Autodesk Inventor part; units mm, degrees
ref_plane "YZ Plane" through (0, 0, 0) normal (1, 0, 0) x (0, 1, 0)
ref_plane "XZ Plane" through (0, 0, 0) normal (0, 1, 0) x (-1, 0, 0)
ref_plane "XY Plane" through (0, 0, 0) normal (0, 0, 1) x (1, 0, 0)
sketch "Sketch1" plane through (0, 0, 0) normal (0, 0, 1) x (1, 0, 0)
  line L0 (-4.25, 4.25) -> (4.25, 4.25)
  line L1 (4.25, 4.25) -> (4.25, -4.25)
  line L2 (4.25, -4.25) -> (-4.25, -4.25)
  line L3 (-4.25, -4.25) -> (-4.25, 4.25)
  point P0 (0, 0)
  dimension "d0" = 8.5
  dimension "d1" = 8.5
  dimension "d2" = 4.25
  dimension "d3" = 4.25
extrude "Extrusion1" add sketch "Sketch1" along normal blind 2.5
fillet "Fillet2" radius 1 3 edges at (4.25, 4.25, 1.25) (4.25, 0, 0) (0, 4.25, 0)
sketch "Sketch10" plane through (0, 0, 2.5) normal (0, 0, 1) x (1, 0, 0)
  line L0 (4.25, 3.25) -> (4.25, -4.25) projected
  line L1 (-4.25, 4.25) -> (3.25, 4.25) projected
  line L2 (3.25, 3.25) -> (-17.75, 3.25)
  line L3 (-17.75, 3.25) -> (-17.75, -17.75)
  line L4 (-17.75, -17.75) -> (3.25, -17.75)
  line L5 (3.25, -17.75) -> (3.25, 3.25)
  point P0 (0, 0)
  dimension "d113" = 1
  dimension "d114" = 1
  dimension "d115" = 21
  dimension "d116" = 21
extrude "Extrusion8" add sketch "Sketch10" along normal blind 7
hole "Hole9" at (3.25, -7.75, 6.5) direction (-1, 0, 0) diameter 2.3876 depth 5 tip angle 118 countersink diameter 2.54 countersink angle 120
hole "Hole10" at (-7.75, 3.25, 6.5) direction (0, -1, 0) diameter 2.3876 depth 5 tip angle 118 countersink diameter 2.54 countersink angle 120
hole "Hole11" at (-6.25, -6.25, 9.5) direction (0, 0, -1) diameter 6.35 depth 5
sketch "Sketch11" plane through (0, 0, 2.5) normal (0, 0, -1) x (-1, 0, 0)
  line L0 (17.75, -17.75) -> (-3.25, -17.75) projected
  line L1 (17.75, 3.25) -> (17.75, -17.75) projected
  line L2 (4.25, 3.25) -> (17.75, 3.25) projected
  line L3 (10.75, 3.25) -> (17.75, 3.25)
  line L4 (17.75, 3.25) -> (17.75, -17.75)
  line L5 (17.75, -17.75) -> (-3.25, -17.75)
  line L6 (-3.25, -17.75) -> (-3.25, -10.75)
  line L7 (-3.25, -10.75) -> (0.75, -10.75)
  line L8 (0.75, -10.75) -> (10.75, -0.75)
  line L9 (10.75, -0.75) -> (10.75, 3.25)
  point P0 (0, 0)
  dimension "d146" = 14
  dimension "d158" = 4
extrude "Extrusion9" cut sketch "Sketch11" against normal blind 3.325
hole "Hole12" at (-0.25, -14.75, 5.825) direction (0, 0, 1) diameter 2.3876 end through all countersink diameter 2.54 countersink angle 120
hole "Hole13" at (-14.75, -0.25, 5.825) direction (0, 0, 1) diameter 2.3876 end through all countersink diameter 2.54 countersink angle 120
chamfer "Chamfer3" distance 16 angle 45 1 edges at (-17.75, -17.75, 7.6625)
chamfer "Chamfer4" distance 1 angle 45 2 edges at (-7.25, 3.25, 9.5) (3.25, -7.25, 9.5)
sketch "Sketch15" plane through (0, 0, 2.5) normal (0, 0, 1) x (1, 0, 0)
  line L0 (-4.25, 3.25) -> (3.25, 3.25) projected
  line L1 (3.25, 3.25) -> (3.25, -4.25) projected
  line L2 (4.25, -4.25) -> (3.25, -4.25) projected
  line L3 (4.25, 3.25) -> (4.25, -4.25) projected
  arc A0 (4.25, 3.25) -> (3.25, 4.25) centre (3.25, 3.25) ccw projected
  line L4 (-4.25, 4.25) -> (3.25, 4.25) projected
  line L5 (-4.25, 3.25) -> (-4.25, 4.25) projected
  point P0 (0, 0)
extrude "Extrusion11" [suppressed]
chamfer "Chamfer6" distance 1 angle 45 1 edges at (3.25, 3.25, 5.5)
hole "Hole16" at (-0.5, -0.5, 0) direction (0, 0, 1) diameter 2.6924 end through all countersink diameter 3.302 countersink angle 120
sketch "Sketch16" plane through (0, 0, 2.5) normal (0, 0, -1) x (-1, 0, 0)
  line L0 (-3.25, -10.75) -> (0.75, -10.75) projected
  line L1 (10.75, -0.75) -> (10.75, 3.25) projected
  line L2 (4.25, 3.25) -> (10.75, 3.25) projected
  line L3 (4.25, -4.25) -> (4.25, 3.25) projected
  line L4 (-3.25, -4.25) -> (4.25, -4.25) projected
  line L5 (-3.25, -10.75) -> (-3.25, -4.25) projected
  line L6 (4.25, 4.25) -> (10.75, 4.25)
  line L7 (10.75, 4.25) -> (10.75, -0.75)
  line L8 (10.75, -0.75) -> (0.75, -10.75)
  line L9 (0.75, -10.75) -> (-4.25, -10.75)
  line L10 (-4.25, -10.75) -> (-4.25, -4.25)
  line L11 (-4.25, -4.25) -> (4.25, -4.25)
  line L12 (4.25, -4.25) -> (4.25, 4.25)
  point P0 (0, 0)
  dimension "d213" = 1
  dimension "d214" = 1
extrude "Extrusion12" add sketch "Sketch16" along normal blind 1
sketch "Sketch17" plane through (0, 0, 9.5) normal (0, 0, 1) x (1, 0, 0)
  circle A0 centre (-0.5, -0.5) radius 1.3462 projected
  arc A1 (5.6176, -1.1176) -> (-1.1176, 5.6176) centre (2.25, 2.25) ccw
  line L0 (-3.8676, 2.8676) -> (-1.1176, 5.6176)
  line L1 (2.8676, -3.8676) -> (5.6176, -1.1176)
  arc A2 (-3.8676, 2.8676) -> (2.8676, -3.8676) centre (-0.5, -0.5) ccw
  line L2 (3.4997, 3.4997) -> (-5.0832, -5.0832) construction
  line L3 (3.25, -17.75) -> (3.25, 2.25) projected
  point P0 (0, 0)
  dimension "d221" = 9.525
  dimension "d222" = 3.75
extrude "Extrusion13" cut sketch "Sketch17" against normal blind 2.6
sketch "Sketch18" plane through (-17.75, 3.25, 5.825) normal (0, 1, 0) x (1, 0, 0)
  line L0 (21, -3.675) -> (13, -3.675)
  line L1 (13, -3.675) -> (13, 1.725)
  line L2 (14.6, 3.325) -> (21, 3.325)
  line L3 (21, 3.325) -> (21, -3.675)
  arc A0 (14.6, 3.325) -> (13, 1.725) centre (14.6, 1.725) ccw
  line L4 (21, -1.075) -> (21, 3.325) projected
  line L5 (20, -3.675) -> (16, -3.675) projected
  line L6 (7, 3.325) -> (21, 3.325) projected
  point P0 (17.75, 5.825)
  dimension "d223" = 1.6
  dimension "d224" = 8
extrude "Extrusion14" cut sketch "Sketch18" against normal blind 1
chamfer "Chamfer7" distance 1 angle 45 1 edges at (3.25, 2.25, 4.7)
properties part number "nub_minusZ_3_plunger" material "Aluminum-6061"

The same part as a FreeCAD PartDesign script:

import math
import FreeCAD as App
import Part
import Sketcher
from FreeCAD import Vector
Q = App.Units.Quantity


def edges_at(feature, points):
    """Names of the edges that pass closest to the given points."""
    edges = feature.Shape.Edges
    near = lambda p: min(range(len(edges)), key=lambda i: edges[i].distToShape(Part.Vertex(*p))[0])
    return sorted({f"Edge{near(p) + 1}" for p in points})


def add_polygon(sketch, points):
    """Adds a closed chain of lines whose ends are joined by coincident constraints."""
    first, n = sketch.GeometryCount, len(points)
    for a, b in zip(points, points[1:] + points[:1]):
        sketch.addGeometry(Part.LineSegment(App.Vector(*a, 0), App.Vector(*b, 0)), False)
    for i in range(n):
        sketch.addConstraint(Sketcher.Constraint("Coincident", first + i, 2, first + (i + 1) % n, 1))

doc = App.newDocument("Part")
body = doc.addObject("PartDesign::Body", "Body")

# Sketch on XY plane
sketch1 = body.newObject("Sketcher::SketchObject", "Sketch")
sketch1.AttachmentSupport = (doc.getObject("XY_Plane"), [""])
sketch1.MapMode = "FlatFace"
add_polygon(sketch1, [(4.25, 4.25), (-4.25, 4.25), (-4.25, -4.25), (4.25, -4.25)])  # lines 0-3
sketch1.addConstraint(Sketcher.Constraint("Horizontal", 0))
sketch1.addConstraint(Sketcher.Constraint("Vertical", 1))
sketch1.addConstraint(Sketcher.Constraint("Horizontal", 2))
sketch1.addConstraint(Sketcher.Constraint("Vertical", 3))
sketch1.addConstraint(Sketcher.Constraint("Symmetric", 0, 2, 2, 2, -1, 1))
sketch1.addConstraint(Sketcher.Constraint("Equal", 2, 1))
sketch1.addConstraint(Sketcher.Constraint("DistanceX", 0, 2, 0, 1, Q("8.5 mm")))
pad1 = body.newObject("PartDesign::Pad", "Pad")
pad1.Profile = sketch1
pad1.Length = 2.5
doc.recompute()

fillet = body.newObject("PartDesign::Fillet", "Fillet")
fillet.Base = (pad1, edges_at(pad1, [(4.25, 4.25, 1.25), (4.25, 0, 0), (0, 4.25, 0)]))
fillet.Radius = 1

# Sketch on XY plane
sketch2 = body.newObject("Sketcher::SketchObject", "Sketch001")
sketch2.AttachmentSupport = (doc.getObject("XY_Plane"), [""])
sketch2.MapMode = "FlatFace"
sketch2.AttachmentOffset = App.Placement(Vector(0, 0, 2.5), App.Rotation())
add_polygon(sketch2, [(3.25, -17.75), (3.25, 3.25), (-17.75, 3.25), (-17.75, -17.75)])  # lines 0-3
sketch2.addConstraint(Sketcher.Constraint("Vertical", 0))
sketch2.addConstraint(Sketcher.Constraint("Horizontal", 1))
sketch2.addConstraint(Sketcher.Constraint("Vertical", 2))
sketch2.addConstraint(Sketcher.Constraint("Horizontal", 3))
sketch2.addConstraint(Sketcher.Constraint("Equal", 3, 0))
sketch2.addConstraint(Sketcher.Constraint("DistanceX", 1, 2, 1, 1, Q("21 mm")))
sketch2.addConstraint(Sketcher.Constraint("DistanceX", -1, 1, 0, 2, Q("3.25 mm")))
sketch2.addConstraint(Sketcher.Constraint("DistanceY", -1, 1, 0, 2, Q("3.25 mm")))
pad2 = body.newObject("PartDesign::Pad", "Pad001")
pad2.Profile = sketch2
pad2.Length = 7

# Sketch on YZ plane
sketch3 = body.newObject("Sketcher::SketchObject", "Sketch002")
sketch3.AttachmentSupport = (doc.getObject("YZ_Plane"), [""])
sketch3.MapMode = "FlatFace"
sketch3.AttachmentOffset = App.Placement(Vector(0, 0, 3.25), App.Rotation())
sketch3.addGeometry(Part.Circle(Vector(-7.75, 6.5, 0), Vector(0, 0, 1), 1.1938), False)
sketch3.addConstraint(Sketcher.Constraint("Diameter", 0, Q("2.3876 mm")))
sketch3.addConstraint(Sketcher.Constraint("DistanceY", -1, 1, 0, 3, Q("6.5 mm")))
sketch3.addConstraint(Sketcher.Constraint("DistanceX", 0, 3, -1, 1, Q("7.75 mm")))
doc.recompute()
hole = body.newObject("PartDesign::Hole", "Hole")
hole.Profile = sketch3
hole.ThreadType = "None"
hole.Diameter = 2.3876
hole.DepthType = "Dimension"
hole.Depth = 5
hole.DrillPoint = "Angled"
hole.DrillPointAngle = 118
hole.HoleCutType = "Countersink"
hole.HoleCutDiameter = 2.54
hole.HoleCutCountersinkAngle = 120

# Sketch on XZ plane
sketch4 = body.newObject("Sketcher::SketchObject", "Sketch003")
sketch4.AttachmentSupport = (doc.getObject("XZ_Plane"), [""])
sketch4.MapMode = "FlatFace"
sketch4.AttachmentOffset = App.Placement(Vector(0, 0, -3.25), App.Rotation())
sketch4.addGeometry(Part.Circle(Vector(-7.75, 6.5, 0), Vector(0, 0, 1), 1.1938), False)
sketch4.addConstraint(Sketcher.Constraint("Diameter", 0, Q("2.3876 mm")))
sketch4.addConstraint(Sketcher.Constraint("DistanceY", -1, 1, 0, 3, Q("6.5 mm")))
sketch4.addConstraint(Sketcher.Constraint("DistanceX", 0, 3, -1, 1, Q("7.75 mm")))
doc.recompute()
hole2 = body.newObject("PartDesign::Hole", "Hole001")
hole2.Profile = sketch4
hole2.ThreadType = "None"
hole2.Diameter = 2.3876
hole2.DepthType = "Dimension"
hole2.Depth = 5
hole2.DrillPoint = "Angled"
hole2.DrillPointAngle = 118
hole2.HoleCutType = "Countersink"
hole2.HoleCutDiameter = 2.54
hole2.HoleCutCountersinkAngle = 120
hole2.Reversed = True

# Sketch on XY plane
sketch5 = body.newObject("Sketcher::SketchObject", "Sketch004")
sketch5.AttachmentSupport = (doc.getObject("XY_Plane"), [""])
sketch5.MapMode = "FlatFace"
sketch5.AttachmentOffset = App.Placement(Vector(0, 0, 9.5), App.Rotation())
sketch5.addGeometry(Part.Circle(Vector(-6.25, -6.25, 0), Vector(0, 0, 1), 3.175), False)
sketch5.addConstraint(Sketcher.Constraint("Diameter", 0, Q("6.35 mm")))
sketch5.addConstraint(Sketcher.Constraint("DistanceX", 0, 3, -1, 1, Q("6.25 mm")))
sketch5.addConstraint(Sketcher.Constraint("DistanceY", 0, 3, -1, 1, Q("6.25 mm")))
doc.recompute()
hole3 = body.newObject("PartDesign::Hole", "Hole002")
hole3.Profile = sketch5
hole3.ThreadType = "None"
hole3.Diameter = 6.35
hole3.DepthType = "Dimension"
hole3.Depth = 5
hole3.DrillPoint = "Flat"

# Sketch on XY plane
sketch6 = body.newObject("Sketcher::SketchObject", "Sketch005")
sketch6.AttachmentSupport = (doc.getObject("XY_Plane"), [""])
sketch6.MapMode = "FlatFace"
sketch6.AttachmentOffset = App.Placement(Vector(0, 0, 2.5), App.Rotation())
add_polygon(sketch6, [(3.25, -17.75), (-17.75, -17.75), (-17.75, 3.25), (-10.75, 3.25), (-10.75, -0.75), (-0.75, -10.75), (3.25, -10.75)])  # lines 0-6
sketch6.addConstraint(Sketcher.Constraint("Horizontal", 0))
sketch6.addConstraint(Sketcher.Constraint("Vertical", 1))
sketch6.addConstraint(Sketcher.Constraint("Horizontal", 2))
sketch6.addConstraint(Sketcher.Constraint("Vertical", 3))
sketch6.addConstraint(Sketcher.Constraint("Horizontal", 5))
sketch6.addConstraint(Sketcher.Constraint("Vertical", 6))
sketch6.addConstraint(Sketcher.Constraint("Equal", 0, 1))
sketch6.addConstraint(Sketcher.Constraint("Equal", 5, 3))
sketch6.addConstraint(Sketcher.Constraint("Equal", 2, 6))
sketch6.addConstraint(Sketcher.Constraint("DistanceX", 5, 1, 5, 2, Q("4 mm")))
sketch6.addConstraint(Sketcher.Constraint("DistanceY", 4, 2, 2, 2, Q("14 mm")))
sketch6.addConstraint(Sketcher.Constraint("DistanceX", 0, 2, 0, 1, Q("21 mm")))
sketch6.addConstraint(Sketcher.Constraint("DistanceX", 0, 2, -1, 1, Q("17.75 mm")))
sketch6.addConstraint(Sketcher.Constraint("DistanceY", 0, 2, -1, 1, Q("17.75 mm")))
pocket1 = body.newObject("PartDesign::Pocket", "Pocket")
pocket1.Profile = sketch6
pocket1.Length = 3.325
pocket1.Reversed = True

# Sketch on XY plane
sketch7 = body.newObject("Sketcher::SketchObject", "Sketch006")
sketch7.AttachmentSupport = (doc.getObject("XY_Plane"), [""])
sketch7.MapMode = "FlatFace"
sketch7.AttachmentOffset = App.Placement(Vector(0, 0, 5.825), App.Rotation())
sketch7.addGeometry(Part.Circle(Vector(-0.25, -14.75, 0), Vector(0, 0, 1), 1.1938), False)
sketch7.addConstraint(Sketcher.Constraint("Diameter", 0, Q("2.3876 mm")))
sketch7.addConstraint(Sketcher.Constraint("DistanceX", 0, 3, -1, 1, Q("0.25 mm")))
sketch7.addConstraint(Sketcher.Constraint("DistanceY", 0, 3, -1, 1, Q("14.75 mm")))
doc.recompute()
hole4 = body.newObject("PartDesign::Hole", "Hole003")
hole4.Profile = sketch7
hole4.ThreadType = "None"
hole4.Diameter = 2.3876
hole4.DepthType = "ThroughAll"
hole4.HoleCutType = "Countersink"
hole4.HoleCutDiameter = 2.54
hole4.HoleCutCountersinkAngle = 120
hole4.Reversed = True

# Sketch on XY plane
sketch8 = body.newObject("Sketcher::SketchObject", "Sketch007")
sketch8.AttachmentSupport = (doc.getObject("XY_Plane"), [""])
sketch8.MapMode = "FlatFace"
sketch8.AttachmentOffset = App.Placement(Vector(0, 0, 5.825), App.Rotation())
sketch8.addGeometry(Part.Circle(Vector(-14.75, -0.25, 0), Vector(0, 0, 1), 1.1938), False)
sketch8.addConstraint(Sketcher.Constraint("Diameter", 0, Q("2.3876 mm")))
sketch8.addConstraint(Sketcher.Constraint("DistanceX", 0, 3, -1, 1, Q("14.75 mm")))
sketch8.addConstraint(Sketcher.Constraint("DistanceY", 0, 3, -1, 1, Q("0.25 mm")))
doc.recompute()
hole5 = body.newObject("PartDesign::Hole", "Hole004")
hole5.Profile = sketch8
hole5.ThreadType = "None"
hole5.Diameter = 2.3876
hole5.DepthType = "ThroughAll"
hole5.HoleCutType = "Countersink"
hole5.HoleCutDiameter = 2.54
hole5.HoleCutCountersinkAngle = 120
hole5.Reversed = True
doc.recompute()

chamfer = body.newObject("PartDesign::Chamfer", "Chamfer")
chamfer.Base = (hole5, edges_at(hole5, [(-17.75, -17.75, 7.662)]))
chamfer.Size = 16
doc.recompute()

chamfer2 = body.newObject("PartDesign::Chamfer", "Chamfer001")
chamfer2.Base = (chamfer, edges_at(chamfer, [(-7.25, 3.25, 9.5), (3.25, -7.25, 9.5)]))
chamfer2.Size = 1
doc.recompute()

chamfer3 = body.newObject("PartDesign::Chamfer", "Chamfer002")
chamfer3.Base = (chamfer2, edges_at(chamfer2, [(3.25, 3.25, 5.5)]))
chamfer3.Size = 1

# Sketch on XY plane
sketch9 = body.newObject("Sketcher::SketchObject", "Sketch008")
sketch9.AttachmentSupport = (doc.getObject("XY_Plane"), [""])
sketch9.MapMode = "FlatFace"
sketch9.addGeometry(Part.Circle(Vector(-0.5, -0.5, 0), Vector(0, 0, 1), 1.3462), False)
sketch9.addConstraint(Sketcher.Constraint("Diameter", 0, Q("2.6924 mm")))
sketch9.addConstraint(Sketcher.Constraint("DistanceX", 0, 3, -1, 1, Q("0.5 mm")))
sketch9.addConstraint(Sketcher.Constraint("DistanceY", 0, 3, -1, 1, Q("0.5 mm")))
doc.recompute()
hole6 = body.newObject("PartDesign::Hole", "Hole005")
hole6.Profile = sketch9
hole6.ThreadType = "None"
hole6.Diameter = 2.6924
hole6.DepthType = "ThroughAll"
hole6.HoleCutType = "Countersink"
hole6.HoleCutDiameter = 3.302
hole6.HoleCutCountersinkAngle = 120
hole6.Reversed = True

# Sketch on XY plane
sketch10 = body.newObject("Sketcher::SketchObject", "Sketch009")
sketch10.AttachmentSupport = (doc.getObject("XY_Plane"), [""])
sketch10.MapMode = "FlatFace"
sketch10.AttachmentOffset = App.Placement(Vector(0, 0, 2.5), App.Rotation())
add_polygon(sketch10, [(-4.25, -4.25), (4.25, -4.25), (4.25, -10.75), (-0.75, -10.75), (-10.75, -0.75), (-10.75, 4.25), (-4.25, 4.25)])  # lines 0-6
sketch10.addConstraint(Sketcher.Constraint("Horizontal", 0))
sketch10.addConstraint(Sketcher.Constraint("Vertical", 1))
sketch10.addConstraint(Sketcher.Constraint("Horizontal", 2))
sketch10.addConstraint(Sketcher.Constraint("Vertical", 4))
sketch10.addConstraint(Sketcher.Constraint("Horizontal", 5))
sketch10.addConstraint(Sketcher.Constraint("Vertical", 6))
sketch10.addConstraint(Sketcher.Constraint("Symmetric", 0, 2, 5, 2, -1, 1))
sketch10.addConstraint(Sketcher.Constraint("Equal", 5, 1))
sketch10.addConstraint(Sketcher.Constraint("Equal", 2, 4))
sketch10.addConstraint(Sketcher.Constraint("Equal", 0, 6))
sketch10.addConstraint(Sketcher.Constraint("DistanceX", 2, 2, 2, 1, Q("5 mm")))
sketch10.addConstraint(Sketcher.Constraint("DistanceX", 0, 1, 0, 2, Q("8.5 mm")))
sketch10.addConstraint(Sketcher.Constraint("DistanceX", 5, 1, 5, 2, Q("6.5 mm")))
pad3 = body.newObject("PartDesign::Pad", "Pad002")
pad3.Profile = sketch10
pad3.Length = 1
pad3.Reversed = True

# Sketch on XY plane
sketch11 = body.newObject("Sketcher::SketchObject", "Sketch010")
sketch11.AttachmentSupport = (doc.getObject("XY_Plane"), [""])
sketch11.MapMode = "FlatFace"
sketch11.AttachmentOffset = App.Placement(Vector(0, 0, 9.5), App.Rotation())
sketch11.addGeometry(Part.LineSegment(Vector(2.8676, -3.8676, 0), Vector(5.6176, -1.1176, 0)), False)
sketch11.addGeometry(Part.ArcOfCircle(Part.Circle(Vector(2.25, 2.25, 0), Vector(0, 0, 1), 4.762506), math.radians(-45), math.radians(135)), False)
sketch11.addGeometry(Part.LineSegment(Vector(-1.1176, 5.6176, 0), Vector(-3.8676, 2.8676, 0)), False)
sketch11.addGeometry(Part.ArcOfCircle(Part.Circle(Vector(-0.5, -0.5, 0), Vector(0, 0, 1), 4.762506), math.radians(135), math.radians(315)), False)
sketch11.addGeometry(Part.Circle(Vector(-0.5, -0.5, 0), Vector(0, 0, 1), 1.3462), False)
sketch11.addConstraint(Sketcher.Constraint("Tangent", 0, 2, 1, 1))
sketch11.addConstraint(Sketcher.Constraint("Tangent", 1, 2, 2, 1))
sketch11.addConstraint(Sketcher.Constraint("Tangent", 2, 2, 3, 1))
sketch11.addConstraint(Sketcher.Constraint("Tangent", 3, 2, 0, 1))
sketch11.addConstraint(Sketcher.Constraint("Coincident", 4, 3, 3, 3))
sketch11.addConstraint(Sketcher.Constraint("Equal", 1, 3))
sketch11.addConstraint(Sketcher.Constraint("Radius", 1, Q("4.7625 mm")))
sketch11.addConstraint(Sketcher.Constraint("Angle", 0, Q("45 deg")))
sketch11.addConstraint(Sketcher.Constraint("Diameter", 4, Q("2.6924 mm")))
sketch11.addConstraint(Sketcher.Constraint("DistanceX", 3, 3, -1, 1, Q("0.5 mm")))
sketch11.addConstraint(Sketcher.Constraint("DistanceY", 3, 3, -1, 1, Q("0.5 mm")))
sketch11.addConstraint(Sketcher.Constraint("DistanceX", -1, 1, 1, 3, Q("2.25 mm")))
pocket2 = body.newObject("PartDesign::Pocket", "Pocket001")
pocket2.Profile = sketch11
pocket2.Length = 2.6

# Sketch on XZ plane
sketch12 = body.newObject("Sketcher::SketchObject", "Sketch011")
sketch12.AttachmentSupport = (doc.getObject("XZ_Plane"), [""])
sketch12.MapMode = "FlatFace"
sketch12.AttachmentOffset = App.Placement(Vector(0, 0, -3.25), App.Rotation())
sketch12.addGeometry(Part.LineSegment(Vector(-4.75, 9.5, 0), Vector(3.25, 9.5, 0)), False)
sketch12.addGeometry(Part.LineSegment(Vector(3.25, 9.5, 0), Vector(3.25, 2.5, 0)), False)
sketch12.addGeometry(Part.LineSegment(Vector(3.25, 2.5, 0), Vector(-3.15, 2.5, 0)), False)
sketch12.addGeometry(Part.ArcOfCircle(Part.Circle(Vector(-3.15, 4.1, 0), Vector(0, 0, 1), 1.6), math.radians(180), math.radians(270)), False)
sketch12.addGeometry(Part.LineSegment(Vector(-4.75, 4.1, 0), Vector(-4.75, 9.5, 0)), False)
sketch12.addConstraint(Sketcher.Constraint("Coincident", 0, 2, 1, 1))
sketch12.addConstraint(Sketcher.Constraint("Coincident", 1, 2, 2, 1))
sketch12.addConstraint(Sketcher.Constraint("Tangent", 2, 2, 3, 2))
sketch12.addConstraint(Sketcher.Constraint("Tangent", 3, 1, 4, 1))
sketch12.addConstraint(Sketcher.Constraint("Coincident", 4, 2, 0, 1))
sketch12.addConstraint(Sketcher.Constraint("Horizontal", 0))
sketch12.addConstraint(Sketcher.Constraint("Vertical", 1))
sketch12.addConstraint(Sketcher.Constraint("Horizontal", 2))
sketch12.addConstraint(Sketcher.Constraint("Vertical", 4))
sketch12.addConstraint(Sketcher.Constraint("Radius", 3, Q("1.6 mm")))
sketch12.addConstraint(Sketcher.Constraint("DistanceX", 0, 1, 0, 2, Q("8 mm")))
sketch12.addConstraint(Sketcher.Constraint("DistanceY", 1, 2, 1, 1, Q("7 mm")))
sketch12.addConstraint(Sketcher.Constraint("DistanceY", -1, 1, 3, 3, Q("4.1 mm")))
sketch12.addConstraint(Sketcher.Constraint("DistanceX", 3, 3, -1, 1, Q("3.15 mm")))
pocket3 = body.newObject("PartDesign::Pocket", "Pocket002")
pocket3.Profile = sketch12
pocket3.Length = 1
pocket3.Reversed = True
doc.recompute()

chamfer4 = body.newObject("PartDesign::Chamfer", "Chamfer003")
chamfer4.Base = (pocket3, edges_at(pocket3, [(3.25, 2.25, 4.7)]))
chamfer4.Size = 1

doc.recompute()
